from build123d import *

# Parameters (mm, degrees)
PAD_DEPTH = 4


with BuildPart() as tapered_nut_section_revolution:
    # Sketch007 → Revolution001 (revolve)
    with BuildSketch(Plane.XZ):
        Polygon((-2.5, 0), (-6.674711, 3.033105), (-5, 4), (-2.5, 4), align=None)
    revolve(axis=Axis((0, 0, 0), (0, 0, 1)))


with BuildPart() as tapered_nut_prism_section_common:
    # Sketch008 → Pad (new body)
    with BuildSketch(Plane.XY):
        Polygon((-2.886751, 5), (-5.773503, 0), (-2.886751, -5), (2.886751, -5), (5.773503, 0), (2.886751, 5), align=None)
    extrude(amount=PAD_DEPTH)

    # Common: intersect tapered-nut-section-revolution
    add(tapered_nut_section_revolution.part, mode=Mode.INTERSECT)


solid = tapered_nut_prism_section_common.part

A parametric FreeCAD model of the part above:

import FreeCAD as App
import Part
import Sketcher
Q = App.Units.Quantity

doc = App.newDocument("Part")
params = doc.addObject("Spreadsheet::Sheet", "Params")
for row, (alias, value) in enumerate([
    ("sketch1_height", "4 mm"),
    ("sketch1_width", "2.5 mm"),
    ("revolution_angle", "360 deg"),
    ("pad1_length", "4 mm"),
], start=1):
    params.set(f"A{row}", alias)
    params.set(f"B{row}", "=" + value)
    params.setAlias(f"B{row}", alias)

body = doc.addObject("PartDesign::Body", "Body")

# Sketch on XZ plane
sketch1 = doc.addObject("Sketcher::SketchObject", "Sketch")
body.addObject(sketch1)
sketch1.AttachmentSupport = (doc.XZ_Plane, [""])
sketch1.MapMode = "FlatFace"
sketch1.addGeometry(Part.LineSegment(App.Vector(-6.674711, 3.033105, 0), App.Vector(-2.5, 0, 0)), False)
sketch1.addGeometry(Part.LineSegment(App.Vector(-2.5, 0, 0), App.Vector(-2.5, 4, 0)), False)
sketch1.addGeometry(Part.LineSegment(App.Vector(-2.5, 4, 0), App.Vector(-5, 4, 0)), False)
sketch1.addGeometry(Part.LineSegment(App.Vector(-5, 4, 0), App.Vector(-6.674711, 3.033105, 0)), False)
sketch1.addConstraint(Sketcher.Constraint("Coincident", 0, 2, 1, 1))
sketch1.addConstraint(Sketcher.Constraint("Coincident", 1, 2, 2, 1))
sketch1.addConstraint(Sketcher.Constraint("Coincident", 2, 2, 3, 1))
sketch1.addConstraint(Sketcher.Constraint("Coincident", 3, 2, 0, 1))
sketch1.addConstraint(Sketcher.Constraint("Vertical", 1))
sketch1.addConstraint(Sketcher.Constraint("Horizontal", 2))
sketch1.addConstraint(Sketcher.Constraint("PointOnObject", 0, 2, -1))
sketch1.addConstraint(Sketcher.Constraint("DistanceY", 1, 1, 1, 2, Q("4 mm")))
sketch1.addConstraint(Sketcher.Constraint("Angle", 0, Q("-35.999999 deg")))
sketch1.addConstraint(Sketcher.Constraint("Angle", 3, Q("-149.999996 deg")))
sketch1.addConstraint(Sketcher.Constraint("DistanceX", 2, 2, 2, 1, Q("2.5 mm")))
sketch1.addConstraint(Sketcher.Constraint("DistanceX", 2, 2, -1, 1, Q("5 mm")))
sketch1.setExpression("Constraints[7]", "Params.sketch1_height")
sketch1.setExpression("Constraints[10]", "Params.sketch1_width")
revolution = doc.addObject("PartDesign::Revolution", "Revolution")
body.addObject(revolution)
revolution.Profile = sketch1
revolution.ReferenceAxis = (sketch1, ["V_Axis"])
revolution.setExpression("Angle", "Params.revolution_angle")
body2 = doc.addObject("PartDesign::Body", "Body001")

# Sketch on XY plane
sketch2 = doc.addObject("Sketcher::SketchObject", "Sketch001")
body2.addObject(sketch2)
sketch2.AttachmentSupport = (doc.getObject("XY_Plane001"), [""])
sketch2.MapMode = "FlatFace"
sketch2.addGeometry(Part.LineSegment(App.Vector(-2.886751, 5, 0), App.Vector(-5.773503, 0, 0)), False)
sketch2.addGeometry(Part.LineSegment(App.Vector(-5.773503, 0, 0), App.Vector(-2.886751, -5, 0)), False)
sketch2.addGeometry(Part.LineSegment(App.Vector(-2.886751, -5, 0), App.Vector(2.886751, -5, 0)), False)
sketch2.addGeometry(Part.LineSegment(App.Vector(2.886751, -5, 0), App.Vector(5.773503, 0, 0)), False)
sketch2.addGeometry(Part.LineSegment(App.Vector(5.773503, 0, 0), App.Vector(2.886751, 5, 0)), False)
sketch2.addGeometry(Part.LineSegment(App.Vector(2.886751, 5, 0), App.Vector(-2.886751, 5, 0)), False)
sketch2.addConstraint(Sketcher.Constraint("Coincident", 0, 2, 1, 1))
sketch2.addConstraint(Sketcher.Constraint("Coincident", 1, 2, 2, 1))
sketch2.addConstraint(Sketcher.Constraint("Coincident", 2, 2, 3, 1))
sketch2.addConstraint(Sketcher.Constraint("Coincident", 3, 2, 4, 1))
sketch2.addConstraint(Sketcher.Constraint("Coincident", 4, 2, 5, 1))
sketch2.addConstraint(Sketcher.Constraint("Coincident", 5, 2, 0, 1))
sketch2.addConstraint(Sketcher.Constraint("Horizontal", 2))
sketch2.addConstraint(Sketcher.Constraint("Horizontal", 5))
sketch2.addConstraint(Sketcher.Constraint("Symmetric", 0, 2, 3, 2, -1, 1))
sketch2.addConstraint(Sketcher.Constraint("Symmetric", 1, 2, 4, 2, -1, 1))
sketch2.addConstraint(Sketcher.Constraint("PointOnObject", 0, 2, -1))
sketch2.addConstraint(Sketcher.Constraint("Parallel", 0, 3))
sketch2.addConstraint(Sketcher.Constraint("Vertical", 2, 2, 4, 2))
sketch2.addConstraint(Sketcher.Constraint("Angle", 0, Q("-120.000006 deg")))
sketch2.addConstraint(Sketcher.Constraint("DistanceY", 1, 2, -1, 1, Q("5 mm")))
sketch2.addConstraint(Sketcher.Constraint("DistanceX", 2, 1, 2, 2, Q("5.773502 mm")))
pad1 = doc.addObject("PartDesign::Pad", "Pad")
body2.addObject(pad1)
pad1.Profile = sketch2
pad1.setExpression("Length", "Params.pad1_length")
doc.recompute()

boolean = doc.addObject("PartDesign::Boolean", "Boolean")
body2.addObject(boolean)
boolean.Type = "Common"
boolean.addObjects([body])

doc.recompute()
